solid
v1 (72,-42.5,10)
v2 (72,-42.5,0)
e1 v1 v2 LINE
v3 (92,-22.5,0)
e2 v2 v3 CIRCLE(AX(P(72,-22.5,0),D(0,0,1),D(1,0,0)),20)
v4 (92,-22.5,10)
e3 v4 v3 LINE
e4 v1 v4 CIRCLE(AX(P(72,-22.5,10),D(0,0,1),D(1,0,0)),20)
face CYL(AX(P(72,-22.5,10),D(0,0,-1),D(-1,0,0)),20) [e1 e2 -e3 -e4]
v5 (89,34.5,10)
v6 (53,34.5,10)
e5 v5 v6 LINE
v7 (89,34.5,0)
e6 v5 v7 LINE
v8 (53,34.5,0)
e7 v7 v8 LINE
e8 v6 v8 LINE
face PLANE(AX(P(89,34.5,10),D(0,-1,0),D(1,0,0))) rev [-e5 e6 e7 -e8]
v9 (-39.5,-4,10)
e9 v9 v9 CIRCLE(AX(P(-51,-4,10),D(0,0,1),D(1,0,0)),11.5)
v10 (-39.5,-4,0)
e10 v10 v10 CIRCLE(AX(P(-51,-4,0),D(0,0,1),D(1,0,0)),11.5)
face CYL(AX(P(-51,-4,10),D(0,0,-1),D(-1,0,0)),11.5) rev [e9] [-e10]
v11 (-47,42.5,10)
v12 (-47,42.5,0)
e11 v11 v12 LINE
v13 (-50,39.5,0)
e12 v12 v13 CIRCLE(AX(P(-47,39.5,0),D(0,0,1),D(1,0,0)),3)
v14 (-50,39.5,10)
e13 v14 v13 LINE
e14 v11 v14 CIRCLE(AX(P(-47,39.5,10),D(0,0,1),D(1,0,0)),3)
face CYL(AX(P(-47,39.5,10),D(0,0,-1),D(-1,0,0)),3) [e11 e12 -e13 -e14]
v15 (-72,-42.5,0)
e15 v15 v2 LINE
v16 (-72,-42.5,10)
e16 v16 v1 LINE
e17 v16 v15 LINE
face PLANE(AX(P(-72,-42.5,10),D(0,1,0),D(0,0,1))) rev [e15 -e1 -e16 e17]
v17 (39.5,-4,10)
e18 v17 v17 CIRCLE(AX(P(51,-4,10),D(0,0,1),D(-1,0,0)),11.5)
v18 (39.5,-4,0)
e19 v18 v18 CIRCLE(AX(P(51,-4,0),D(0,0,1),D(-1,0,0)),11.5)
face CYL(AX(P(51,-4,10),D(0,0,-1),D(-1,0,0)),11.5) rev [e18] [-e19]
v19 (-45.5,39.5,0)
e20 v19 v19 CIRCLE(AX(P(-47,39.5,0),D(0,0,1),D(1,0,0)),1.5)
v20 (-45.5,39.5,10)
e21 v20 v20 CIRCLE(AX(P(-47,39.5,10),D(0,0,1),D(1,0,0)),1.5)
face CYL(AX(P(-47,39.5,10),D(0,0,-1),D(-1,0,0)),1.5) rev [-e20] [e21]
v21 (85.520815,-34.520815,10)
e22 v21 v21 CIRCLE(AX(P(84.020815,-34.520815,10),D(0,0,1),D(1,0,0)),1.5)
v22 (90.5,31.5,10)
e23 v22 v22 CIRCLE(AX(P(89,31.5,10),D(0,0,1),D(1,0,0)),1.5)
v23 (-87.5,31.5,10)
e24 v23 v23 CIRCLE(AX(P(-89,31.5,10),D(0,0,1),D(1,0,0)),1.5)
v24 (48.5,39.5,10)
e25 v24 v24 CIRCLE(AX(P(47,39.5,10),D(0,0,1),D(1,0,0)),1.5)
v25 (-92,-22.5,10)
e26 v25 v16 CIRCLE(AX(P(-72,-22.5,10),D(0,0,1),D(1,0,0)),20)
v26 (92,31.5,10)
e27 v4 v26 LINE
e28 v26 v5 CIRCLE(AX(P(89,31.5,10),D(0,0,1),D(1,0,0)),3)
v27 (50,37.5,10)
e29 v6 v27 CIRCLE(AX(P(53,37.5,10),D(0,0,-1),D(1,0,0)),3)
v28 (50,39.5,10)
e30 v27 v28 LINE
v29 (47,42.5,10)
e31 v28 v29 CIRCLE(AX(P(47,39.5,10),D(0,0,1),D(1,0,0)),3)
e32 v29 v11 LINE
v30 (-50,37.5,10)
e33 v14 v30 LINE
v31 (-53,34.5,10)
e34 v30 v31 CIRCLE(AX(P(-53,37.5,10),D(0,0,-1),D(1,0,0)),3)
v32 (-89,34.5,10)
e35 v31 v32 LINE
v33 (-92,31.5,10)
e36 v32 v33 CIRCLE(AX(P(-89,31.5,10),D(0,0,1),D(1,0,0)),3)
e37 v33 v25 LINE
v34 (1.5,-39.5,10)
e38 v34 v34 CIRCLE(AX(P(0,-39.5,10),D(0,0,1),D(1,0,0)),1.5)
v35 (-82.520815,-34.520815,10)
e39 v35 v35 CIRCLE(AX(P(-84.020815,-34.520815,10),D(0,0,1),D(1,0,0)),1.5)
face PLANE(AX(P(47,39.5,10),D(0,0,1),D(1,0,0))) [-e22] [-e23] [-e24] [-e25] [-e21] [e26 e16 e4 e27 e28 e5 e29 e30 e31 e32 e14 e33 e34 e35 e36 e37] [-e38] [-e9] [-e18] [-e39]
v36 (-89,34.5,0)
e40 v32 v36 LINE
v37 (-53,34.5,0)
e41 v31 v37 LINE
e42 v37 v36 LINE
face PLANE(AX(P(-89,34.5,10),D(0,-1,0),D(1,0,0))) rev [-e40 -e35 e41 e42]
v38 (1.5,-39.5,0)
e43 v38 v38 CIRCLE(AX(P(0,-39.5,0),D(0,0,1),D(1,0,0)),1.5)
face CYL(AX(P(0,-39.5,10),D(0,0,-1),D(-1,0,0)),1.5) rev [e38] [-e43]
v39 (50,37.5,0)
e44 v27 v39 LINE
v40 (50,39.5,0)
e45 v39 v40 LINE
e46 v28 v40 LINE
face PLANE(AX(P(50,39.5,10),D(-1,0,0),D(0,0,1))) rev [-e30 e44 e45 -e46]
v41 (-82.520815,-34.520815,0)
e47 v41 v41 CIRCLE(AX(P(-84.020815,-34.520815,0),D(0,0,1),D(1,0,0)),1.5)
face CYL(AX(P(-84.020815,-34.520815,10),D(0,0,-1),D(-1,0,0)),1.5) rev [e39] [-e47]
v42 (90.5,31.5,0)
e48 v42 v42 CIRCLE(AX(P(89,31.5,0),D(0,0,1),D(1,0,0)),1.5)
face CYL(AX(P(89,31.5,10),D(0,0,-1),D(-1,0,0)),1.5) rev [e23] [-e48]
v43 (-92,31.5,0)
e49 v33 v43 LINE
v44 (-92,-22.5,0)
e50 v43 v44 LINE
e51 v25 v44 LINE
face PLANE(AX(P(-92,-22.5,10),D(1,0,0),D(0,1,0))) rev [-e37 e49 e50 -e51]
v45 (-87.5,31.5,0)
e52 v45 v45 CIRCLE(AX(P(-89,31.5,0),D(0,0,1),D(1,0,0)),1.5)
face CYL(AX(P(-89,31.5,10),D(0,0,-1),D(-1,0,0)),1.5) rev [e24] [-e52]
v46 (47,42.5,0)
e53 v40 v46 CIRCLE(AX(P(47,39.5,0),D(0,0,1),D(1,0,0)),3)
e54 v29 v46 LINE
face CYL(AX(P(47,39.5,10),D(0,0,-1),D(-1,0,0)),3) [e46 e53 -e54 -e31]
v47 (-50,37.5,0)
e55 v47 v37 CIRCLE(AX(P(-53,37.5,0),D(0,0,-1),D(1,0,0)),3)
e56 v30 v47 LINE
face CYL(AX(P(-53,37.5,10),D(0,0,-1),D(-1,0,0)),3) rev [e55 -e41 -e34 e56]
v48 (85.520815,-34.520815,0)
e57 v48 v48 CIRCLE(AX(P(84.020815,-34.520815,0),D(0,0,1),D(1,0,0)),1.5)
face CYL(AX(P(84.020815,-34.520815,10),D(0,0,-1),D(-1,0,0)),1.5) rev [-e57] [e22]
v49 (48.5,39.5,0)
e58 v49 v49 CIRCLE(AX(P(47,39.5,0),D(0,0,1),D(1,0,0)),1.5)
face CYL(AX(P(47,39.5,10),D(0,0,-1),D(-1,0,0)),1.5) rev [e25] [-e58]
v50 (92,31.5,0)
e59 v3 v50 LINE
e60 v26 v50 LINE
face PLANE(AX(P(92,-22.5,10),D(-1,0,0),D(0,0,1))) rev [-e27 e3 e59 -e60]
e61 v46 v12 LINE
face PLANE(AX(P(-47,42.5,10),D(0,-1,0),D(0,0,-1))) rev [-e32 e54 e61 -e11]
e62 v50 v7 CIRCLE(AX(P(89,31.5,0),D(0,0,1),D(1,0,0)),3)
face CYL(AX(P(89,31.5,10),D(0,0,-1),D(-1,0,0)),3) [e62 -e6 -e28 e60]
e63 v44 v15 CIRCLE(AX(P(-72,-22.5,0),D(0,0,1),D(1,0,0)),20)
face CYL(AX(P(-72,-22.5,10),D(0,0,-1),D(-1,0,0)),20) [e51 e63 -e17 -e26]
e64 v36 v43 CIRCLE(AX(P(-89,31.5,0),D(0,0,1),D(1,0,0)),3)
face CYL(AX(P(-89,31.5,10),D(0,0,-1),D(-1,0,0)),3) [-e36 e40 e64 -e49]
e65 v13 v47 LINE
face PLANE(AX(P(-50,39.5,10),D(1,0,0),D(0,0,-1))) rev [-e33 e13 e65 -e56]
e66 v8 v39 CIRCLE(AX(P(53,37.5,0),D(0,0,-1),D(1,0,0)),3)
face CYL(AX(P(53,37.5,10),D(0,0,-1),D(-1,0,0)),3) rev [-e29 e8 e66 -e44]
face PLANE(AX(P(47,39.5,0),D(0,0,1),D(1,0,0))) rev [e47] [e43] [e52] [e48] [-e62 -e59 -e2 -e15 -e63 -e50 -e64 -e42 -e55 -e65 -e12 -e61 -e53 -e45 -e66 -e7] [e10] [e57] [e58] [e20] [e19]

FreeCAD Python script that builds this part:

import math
import FreeCAD as App
import Part
import Sketcher

V = App.Vector
Q = App.Units.Quantity

doc = App.newDocument("Part")
body = doc.addObject("PartDesign::Body", "Body")

# Sketch on XY plane
sketch1 = body.newObject("Sketcher::SketchObject", "Sketch")
sketch1.AttachmentSupport = (doc.getObject("XY_Plane"), [""])
sketch1.MapMode = "FlatFace"
sketch1.addGeometry([
    Part.LineSegment(V(50, 37.5, 0), V(50, 39.5, 0)),  # 0
    Part.ArcOfCircle(Part.Circle(V(47, 39.5, 0), V(0, 0, 1), 3), math.radians(0), math.radians(90)),  # 1
    Part.LineSegment(V(47, 42.5, 0), V(-47, 42.5, 0)),  # 2
    Part.ArcOfCircle(Part.Circle(V(-47, 39.5, 0), V(0, 0, 1), 3), math.radians(90), math.radians(180)),  # 3
    Part.LineSegment(V(-50, 39.5, 0), V(-50, 37.5, 0)),  # 4
    Part.ArcOfCircle(Part.Circle(V(-53, 37.5, 0), V(0, 0, 1), 3), math.radians(-90), math.radians(0)),  # 5
    Part.LineSegment(V(-53, 34.5, 0), V(-89, 34.5, 0)),  # 6
    Part.ArcOfCircle(Part.Circle(V(-89, 31.5, 0), V(0, 0, 1), 3), math.radians(90), math.radians(180)),  # 7
    Part.LineSegment(V(-92, 31.5, 0), V(-92, -22.5, 0)),  # 8
    Part.ArcOfCircle(Part.Circle(V(-72, -22.5, 0), V(0, 0, 1), 20), math.radians(180), math.radians(270)),  # 9
    Part.LineSegment(V(-72, -42.5, 0), V(72, -42.5, 0)),  # 10
    Part.ArcOfCircle(Part.Circle(V(72, -22.5, 0), V(0, 0, 1), 20), math.radians(-90), math.radians(0)),  # 11
    Part.LineSegment(V(92, -22.5, 0), V(92, 31.5, 0)),  # 12
    Part.ArcOfCircle(Part.Circle(V(89, 31.5, 0), V(0, 0, 1), 3), math.radians(0), math.radians(90)),  # 13
    Part.LineSegment(V(89, 34.5, 0), V(53, 34.5, 0)),  # 14
    Part.ArcOfCircle(Part.Circle(V(53, 37.5, 0), V(0, 0, 1), 3), math.radians(180), math.radians(270)),  # 15
    Part.Circle(V(84.020815, -34.520815, 0), V(0, 0, 1), 1.5),  # 16
    Part.Circle(V(51, -4, 0), V(0, 0, 1), 11.5),  # 17
    Part.Circle(V(0, -39.5, 0), V(0, 0, 1), 1.5),  # 18
    Part.Circle(V(-84.020815, -34.520815, 0), V(0, 0, 1), 1.5),  # 19
    Part.Circle(V(-51, -4, 0), V(0, 0, 1), 11.5),  # 20
    Part.Circle(V(89, 31.5, 0), V(0, 0, 1), 1.5),  # 21
    Part.Circle(V(47, 39.5, 0), V(0, 0, 1), 1.5),  # 22
    Part.Circle(V(-47, 39.5, 0), V(0, 0, 1), 1.5),  # 23
    Part.Circle(V(-89, 31.5, 0), V(0, 0, 1), 1.5),  # 24
], False)
sketch1.addConstraint([
    Sketcher.Constraint("Tangent", 0, 2, 1, 1),
    Sketcher.Constraint("Tangent", 1, 2, 2, 1),
    Sketcher.Constraint("Tangent", 2, 2, 3, 1),
    Sketcher.Constraint("Tangent", 3, 2, 4, 1),
    Sketcher.Constraint("Tangent", 4, 2, 5, 2),
    Sketcher.Constraint("Tangent", 5, 1, 6, 1),
    Sketcher.Constraint("Tangent", 6, 2, 7, 1),
    Sketcher.Constraint("Tangent", 7, 2, 8, 1),
    Sketcher.Constraint("Tangent", 8, 2, 9, 1),
    Sketcher.Constraint("Tangent", 9, 2, 10, 1),
    Sketcher.Constraint("Tangent", 10, 2, 11, 1),
    Sketcher.Constraint("Tangent", 11, 2, 12, 1),
    Sketcher.Constraint("Tangent", 12, 2, 13, 1),
    Sketcher.Constraint("Tangent", 13, 2, 14, 1),
    Sketcher.Constraint("Tangent", 14, 2, 15, 2),
    Sketcher.Constraint("Tangent", 15, 1, 0, 1),
    Sketcher.Constraint("Vertical", 0),
    Sketcher.Constraint("Horizontal", 2),
    Sketcher.Constraint("Vertical", 4),
    Sketcher.Constraint("Horizontal", 6),
    Sketcher.Constraint("Vertical", 8),
    Sketcher.Constraint("Horizontal", 10),
    Sketcher.Constraint("Vertical", 12),
    Sketcher.Constraint("Horizontal", 14),
    Sketcher.Constraint("Coincident", 21, 3, 13, 3),
    Sketcher.Constraint("Coincident", 22, 3, 1, 3),
    Sketcher.Constraint("Coincident", 23, 3, 3, 3),
    Sketcher.Constraint("Coincident", 24, 3, 7, 3),
    Sketcher.Constraint("Equal", 1, 3),
    Sketcher.Constraint("Equal", 3, 5),
    Sketcher.Constraint("Equal", 5, 7),
    Sketcher.Constraint("Equal", 9, 11),
    Sketcher.Constraint("Equal", 7, 13),
    Sketcher.Constraint("Equal", 13, 15),
    Sketcher.Constraint("Equal", 16, 18),
    Sketcher.Constraint("Equal", 18, 19),
    Sketcher.Constraint("Equal", 17, 20),
    Sketcher.Constraint("Equal", 19, 21),
    Sketcher.Constraint("Equal", 21, 22),
    Sketcher.Constraint("Equal", 22, 23),
    Sketcher.Constraint("Equal", 23, 24),
    Sketcher.Constraint("Symmetric", 7, 3, 13, 3, -2),
    Sketcher.Constraint("Symmetric", 16, 3, 19, 3, -2),
    Sketcher.Constraint("Symmetric", 17, 3, 20, 3, -2),
    Sketcher.Constraint("PointOnObject", 18, 3, -2),
    Sketcher.Constraint("Equal", 6, 14),
    Sketcher.Constraint("Diameter", 16, Q("3 mm")),
    Sketcher.Constraint("Diameter", 17, Q("23 mm")),
    Sketcher.Constraint("Radius", 1, Q("3 mm")),
    Sketcher.Constraint("Radius", 9, Q("20 mm")),
    Sketcher.Constraint("DistanceX", 2, 2, 2, 1, Q("94 mm")),
    Sketcher.Constraint("DistanceX", 6, 2, 6, 1, Q("36 mm")),
    Sketcher.Constraint("DistanceY", 0, 1, 0, 2, Q("2 mm")),
    Sketcher.Constraint("DistanceY", 8, 2, 8, 1, Q("54 mm")),
    Sketcher.Constraint("DistanceX", -1, 1, 17, 3, Q("51 mm")),
    Sketcher.Constraint("DistanceY", 17, 3, -1, 1, Q("4 mm")),
    Sketcher.Constraint("DistanceY", 18, 3, 9, 3, Q("17 mm")),
    Sketcher.Constraint("DistanceY", -1, 1, 1, 3, Q("39.5 mm")),
    Sketcher.Constraint("DistanceX", -1, 1, 16, 3, Q("84.020815 mm")),
    Sketcher.Constraint("DistanceY", 16, 3, -1, 1, Q("34.520815 mm")),
])
pad1 = body.newObject("PartDesign::Pad", "Pad")
pad1.Profile = sketch1
pad1.Length = 10

doc.recompute()
